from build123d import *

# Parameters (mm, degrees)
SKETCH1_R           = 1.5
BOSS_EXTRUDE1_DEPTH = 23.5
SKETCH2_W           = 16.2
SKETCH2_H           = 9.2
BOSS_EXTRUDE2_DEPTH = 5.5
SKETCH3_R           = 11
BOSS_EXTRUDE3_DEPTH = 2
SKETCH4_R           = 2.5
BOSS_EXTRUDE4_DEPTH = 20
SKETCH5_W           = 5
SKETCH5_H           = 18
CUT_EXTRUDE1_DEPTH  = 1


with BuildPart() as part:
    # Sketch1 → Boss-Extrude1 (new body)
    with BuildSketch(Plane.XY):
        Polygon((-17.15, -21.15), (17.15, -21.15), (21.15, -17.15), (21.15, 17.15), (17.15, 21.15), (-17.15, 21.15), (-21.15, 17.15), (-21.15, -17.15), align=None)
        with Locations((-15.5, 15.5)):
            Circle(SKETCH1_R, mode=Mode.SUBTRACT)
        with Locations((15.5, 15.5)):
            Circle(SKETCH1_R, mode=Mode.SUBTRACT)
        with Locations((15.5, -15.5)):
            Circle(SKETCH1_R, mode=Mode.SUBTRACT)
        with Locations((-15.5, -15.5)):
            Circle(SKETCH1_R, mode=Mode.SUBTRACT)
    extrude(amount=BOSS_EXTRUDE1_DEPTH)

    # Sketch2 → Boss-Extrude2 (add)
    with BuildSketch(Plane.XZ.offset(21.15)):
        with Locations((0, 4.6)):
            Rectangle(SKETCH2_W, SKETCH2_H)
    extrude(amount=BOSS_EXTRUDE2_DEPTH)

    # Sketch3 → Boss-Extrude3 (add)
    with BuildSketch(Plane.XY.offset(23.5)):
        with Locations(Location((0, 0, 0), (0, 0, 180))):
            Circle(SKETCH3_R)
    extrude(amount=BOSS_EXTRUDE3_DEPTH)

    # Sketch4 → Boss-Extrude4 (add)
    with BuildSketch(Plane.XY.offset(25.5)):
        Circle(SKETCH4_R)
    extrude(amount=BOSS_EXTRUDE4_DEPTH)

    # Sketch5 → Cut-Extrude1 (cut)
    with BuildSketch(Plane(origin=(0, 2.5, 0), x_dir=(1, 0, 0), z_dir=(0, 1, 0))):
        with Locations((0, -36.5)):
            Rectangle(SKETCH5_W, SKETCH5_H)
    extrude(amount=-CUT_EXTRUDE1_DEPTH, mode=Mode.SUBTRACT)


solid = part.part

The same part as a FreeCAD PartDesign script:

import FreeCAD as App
import Part
import Sketcher


def add_polygon(sketch, points):
    """Adds a closed chain of lines whose ends are joined by coincident constraints."""
    first, n = sketch.GeometryCount, len(points)
    for a, b in zip(points, points[1:] + points[:1]):
        sketch.addGeometry(Part.LineSegment(App.Vector(*a, 0), App.Vector(*b, 0)), False)
    for i in range(n):
        sketch.addConstraint(Sketcher.Constraint("Coincident", first + i, 2, first + (i + 1) % n, 1))

doc = App.newDocument("Part")
params = doc.addObject("Spreadsheet::Sheet", "Params")
for row, (alias, value) in enumerate([
    ("sketch1_diameter", "3 mm"),
    ("sketch1_width", "34.3 mm"),
    ("pad1_length", "23.5 mm"),
    ("sketch2_width", "16.2 mm"),
    ("sketch2_height", "9.2 mm"),
    ("pad2_length", "5.5 mm"),
    ("sketch3_diameter", "22 mm"),
    ("pad3_length", "2 mm"),
    ("sketch4_diameter", "5 mm"),
    ("pad4_length", "20 mm"),
    ("sketch5_width", "5 mm"),
    ("sketch5_height", "18 mm"),
    ("pocket1_length", "1 mm"),
], start=1):
    params.set(f"A{row}", alias)
    params.set(f"B{row}", "=" + value)
    params.setAlias(f"B{row}", alias)

body = doc.addObject("PartDesign::Body", "Body")

sketch1 = body.newObject("Sketcher::SketchObject", "Sketch")
sketch1.AttachmentSupport = (doc.getObject("XY_Plane"), [""])
sketch1.MapMode = "FlatFace"
add_polygon(sketch1, [(-17.1, -21.1), (17.1, -21.1), (21.1, -17.1), (21.1, 17.1), (17.1, 21.1), (-17.1, 21.1), (-21.1, 17.1), (-21.1, -17.1)])
sketch1.addGeometry(Part.Circle(App.Vector(-15.5, -15.5, 0), App.Vector(0, 0, 1), 1.5), False)
sketch1.addGeometry(Part.Circle(App.Vector(15.5, -15.5, 0), App.Vector(0, 0, 1), 1.5), False)
sketch1.addGeometry(Part.Circle(App.Vector(-15.5, 15.5, 0), App.Vector(0, 0, 1), 1.5), False)
sketch1.addGeometry(Part.Circle(App.Vector(15.5, 15.5, 0), App.Vector(0, 0, 1), 1.5), False)
sketch1.addConstraint(Sketcher.Constraint("Horizontal", 0))
sketch1.addConstraint(Sketcher.Constraint("Vertical", 2))
sketch1.addConstraint(Sketcher.Constraint("Horizontal", 4))
sketch1.addConstraint(Sketcher.Constraint("Vertical", 6))
sketch1.addConstraint(Sketcher.Constraint("Equal", 8, 9))
sketch1.addConstraint(Sketcher.Constraint("Equal", 9, 10))
sketch1.addConstraint(Sketcher.Constraint("Equal", 10, 11))
sketch1.addConstraint(Sketcher.Constraint("Symmetric", 9, 3, 10, 3, -1, 1))
sketch1.addConstraint(Sketcher.Constraint("Symmetric", 8, 3, 11, 3, -1, 1))
sketch1.addConstraint(Sketcher.Constraint("Symmetric", 0, 2, 4, 2, -1, 1))
sketch1.addConstraint(Sketcher.Constraint("Symmetric", 1, 2, 5, 2, -1, 1))
sketch1.addConstraint(Sketcher.Constraint("Symmetric", 8, 3, 9, 3, -2))
sketch1.addConstraint(Sketcher.Constraint("Perpendicular", 1, 3))
sketch1.addConstraint(Sketcher.Constraint("Perpendicular", 5, 7))
sketch1.addConstraint(Sketcher.Constraint("Horizontal", 2, 2, 5, 2))
sketch1.addConstraint(Sketcher.Constraint("Horizontal", 1, 2, 6, 2))
sketch1.addConstraint(Sketcher.Constraint("Vertical", 0, 2, 3, 2))
sketch1.addConstraint(Sketcher.Constraint("Equal", 4, 2))
sketch1.addConstraint(Sketcher.Constraint("Diameter", 8, 3.0))
sketch1.addConstraint(Sketcher.Constraint("DistanceX", 0, 1, 0, 2, 34.3))
sketch1.addConstraint(Sketcher.Constraint("DistanceX", 8, 3, 9, 3, 31.0))
sketch1.addConstraint(Sketcher.Constraint("DistanceY", 8, 3, 10, 3, 31.0))
sketch1.addConstraint(Sketcher.Constraint("DistanceX", 0, 2, 1, 2, 4.0))
sketch1.setExpression("Constraints[26]", "Params.sketch1_diameter")
sketch1.setExpression("Constraints[27]", "Params.sketch1_width")
pad1 = body.newObject("PartDesign::Pad", "Pad")
pad1.Profile = sketch1
pad1.setExpression("Length", "Params.pad1_length")

sketch2 = body.newObject("Sketcher::SketchObject", "Sketch001")
sketch2.AttachmentSupport = (doc.getObject("XZ_Plane"), [""])
sketch2.MapMode = "FlatFace"
sketch2.AttachmentOffset = App.Placement(App.Vector(0, 0, 21.15), App.Rotation())
add_polygon(sketch2, [(-8, 9), (-8, 0), (8, 0), (8, 9)])
sketch2.addConstraint(Sketcher.Constraint("Vertical", 0))
sketch2.addConstraint(Sketcher.Constraint("Horizontal", 1))
sketch2.addConstraint(Sketcher.Constraint("Vertical", 2))
sketch2.addConstraint(Sketcher.Constraint("Horizontal", 3))
sketch2.addConstraint(Sketcher.Constraint("Symmetric", 0, 2, 1, 2, -1, 1))
sketch2.addConstraint(Sketcher.Constraint("DistanceX", 1, 1, 1, 2, 16.2))
sketch2.addConstraint(Sketcher.Constraint("DistanceY", 0, 2, 0, 1, 9.2))
sketch2.setExpression("Constraints[9]", "Params.sketch2_width")
sketch2.setExpression("Constraints[10]", "Params.sketch2_height")
pad2 = body.newObject("PartDesign::Pad", "Pad001")
pad2.Profile = sketch2
pad2.setExpression("Length", "Params.pad2_length")

sketch3 = body.newObject("Sketcher::SketchObject", "Sketch002")
sketch3.AttachmentSupport = (doc.getObject("XY_Plane"), [""])
sketch3.MapMode = "FlatFace"
sketch3.AttachmentOffset = App.Placement(App.Vector(0, 0, 23.5), App.Rotation())
sketch3.addGeometry(Part.Circle(App.Vector(0, 0, 0), App.Vector(0, 0, 1), 11), False)
sketch3.addConstraint(Sketcher.Constraint("Coincident", 0, 3, -1, 1))
sketch3.addConstraint(Sketcher.Constraint("Diameter", 0, 22.0))
sketch3.setExpression("Constraints[1]", "Params.sketch3_diameter")
pad3 = body.newObject("PartDesign::Pad", "Pad002")
pad3.Profile = sketch3
pad3.setExpression("Length", "Params.pad3_length")

sketch4 = body.newObject("Sketcher::SketchObject", "Sketch003")
sketch4.AttachmentSupport = (doc.getObject("XY_Plane"), [""])
sketch4.MapMode = "FlatFace"
sketch4.AttachmentOffset = App.Placement(App.Vector(0, 0, 25.5), App.Rotation())
sketch4.addGeometry(Part.Circle(App.Vector(0, 0, 0), App.Vector(0, 0, 1), 2.5), False)
sketch4.addConstraint(Sketcher.Constraint("Coincident", 0, 3, -1, 1))
sketch4.addConstraint(Sketcher.Constraint("Diameter", 0, 5.0))
sketch4.setExpression("Constraints[1]", "Params.sketch4_diameter")
pad4 = body.newObject("PartDesign::Pad", "Pad003")
pad4.Profile = sketch4
pad4.setExpression("Length", "Params.pad4_length")

sketch5 = body.newObject("Sketcher::SketchObject", "Sketch004")
sketch5.AttachmentSupport = (doc.getObject("XZ_Plane"), [""])
sketch5.MapMode = "FlatFace"
sketch5.AttachmentOffset = App.Placement(App.Vector(0, 0, -2.5), App.Rotation())
add_polygon(sketch5, [(-2, 28), (-2, 46), (2, 46), (2, 28)])
sketch5.addConstraint(Sketcher.Constraint("Vertical", 0))
sketch5.addConstraint(Sketcher.Constraint("Horizontal", 1))
sketch5.addConstraint(Sketcher.Constraint("Vertical", 2))
sketch5.addConstraint(Sketcher.Constraint("Horizontal", 3))
sketch5.addConstraint(Sketcher.Constraint("DistanceX", 1, 1, 1, 2, 5.0))
sketch5.addConstraint(Sketcher.Constraint("DistanceY", 0, 1, 0, 2, 18.0))
sketch5.addConstraint(Sketcher.Constraint("DistanceX", 0, 2, -1, 1, 2.5))
sketch5.addConstraint(Sketcher.Constraint("DistanceY", -1, 1, 0, 2, 45.5))
sketch5.setExpression("Constraints[8]", "Params.sketch5_width")
sketch5.setExpression("Constraints[9]", "Params.sketch5_height")
pocket1 = body.newObject("PartDesign::Pocket", "Pocket")
pocket1.Profile = sketch5
pocket1.setExpression("Length", "Params.pocket1_length")
pocket1.Reversed = True

doc.recompute()
